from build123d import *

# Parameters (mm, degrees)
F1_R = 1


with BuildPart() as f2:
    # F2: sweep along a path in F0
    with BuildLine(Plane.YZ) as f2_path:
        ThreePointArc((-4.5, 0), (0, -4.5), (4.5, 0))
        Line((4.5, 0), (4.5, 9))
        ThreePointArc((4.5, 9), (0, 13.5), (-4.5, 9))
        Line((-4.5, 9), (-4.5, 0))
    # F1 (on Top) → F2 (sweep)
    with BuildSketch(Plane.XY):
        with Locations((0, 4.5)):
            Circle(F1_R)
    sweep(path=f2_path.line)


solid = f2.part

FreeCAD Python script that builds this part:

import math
import FreeCAD as App
import Part
import Sketcher

V = App.Vector
Q = App.Units.Quantity

doc = App.newDocument("Part")
body = doc.addObject("PartDesign::Body", "Body")

# Sketch on XY plane
sketch1 = doc.addObject("Sketcher::SketchObject", "Sketch")
body.addObject(sketch1)
sketch1.AttachmentSupport = (doc.XY_Plane, [""])
sketch1.MapMode = "FlatFace"
sketch1.addGeometry(Part.Circle(V(0, 4.5, 0), V(0, 0, 1), 1), False)
sketch1.addConstraint([
    Sketcher.Constraint("PointOnObject", 0, 3, -2),
    Sketcher.Constraint("Diameter", 0, Q("2 mm")),
    Sketcher.Constraint("DistanceY", -1, 1, 0, 3, Q("4.5 mm")),
])

# Sketch on YZ plane
sketch2 = doc.addObject("Sketcher::SketchObject", "Sketch001")
body.addObject(sketch2)
sketch2.AttachmentSupport = (doc.YZ_Plane, [""])
sketch2.MapMode = "FlatFace"
sketch2.addGeometry([
    Part.ArcOfCircle(Part.Circle(V(0, 0, 0), V(0, 0, 1), 4.5), math.radians(180), math.radians(360)),
    Part.LineSegment(V(4.5, 0, 0), V(4.5, 9, 0)),
    Part.ArcOfCircle(Part.Circle(V(0, 9, 0), V(0, 0, 1), 4.5), math.radians(0), math.radians(180)),
    Part.LineSegment(V(-4.5, 9, 0), V(-4.5, 0, 0)),
], False)
sketch2.addConstraint([
    Sketcher.Constraint("Tangent", 0, 2, 1, 1),
    Sketcher.Constraint("Tangent", 1, 2, 2, 1),
    Sketcher.Constraint("Tangent", 2, 2, 3, 1),
    Sketcher.Constraint("Tangent", 3, 2, 0, 1),
    Sketcher.Constraint("Vertical", 1),
    Sketcher.Constraint("Vertical", 3),
    Sketcher.Constraint("Coincident", 0, 3, -1, 1),
    Sketcher.Constraint("Radius", 0, Q("4.5 mm")),
    Sketcher.Constraint("DistanceY", 1, 1, 1, 2, Q("9 mm")),
])
doc.recompute()

additivepipe = doc.addObject("PartDesign::AdditivePipe", "AdditivePipe")
body.addObject(additivepipe)
additivepipe.Profile = sketch1
additivepipe.Spine = (sketch2, ["Edge1", "Edge2", "Edge3", "Edge4"])

doc.recompute()
